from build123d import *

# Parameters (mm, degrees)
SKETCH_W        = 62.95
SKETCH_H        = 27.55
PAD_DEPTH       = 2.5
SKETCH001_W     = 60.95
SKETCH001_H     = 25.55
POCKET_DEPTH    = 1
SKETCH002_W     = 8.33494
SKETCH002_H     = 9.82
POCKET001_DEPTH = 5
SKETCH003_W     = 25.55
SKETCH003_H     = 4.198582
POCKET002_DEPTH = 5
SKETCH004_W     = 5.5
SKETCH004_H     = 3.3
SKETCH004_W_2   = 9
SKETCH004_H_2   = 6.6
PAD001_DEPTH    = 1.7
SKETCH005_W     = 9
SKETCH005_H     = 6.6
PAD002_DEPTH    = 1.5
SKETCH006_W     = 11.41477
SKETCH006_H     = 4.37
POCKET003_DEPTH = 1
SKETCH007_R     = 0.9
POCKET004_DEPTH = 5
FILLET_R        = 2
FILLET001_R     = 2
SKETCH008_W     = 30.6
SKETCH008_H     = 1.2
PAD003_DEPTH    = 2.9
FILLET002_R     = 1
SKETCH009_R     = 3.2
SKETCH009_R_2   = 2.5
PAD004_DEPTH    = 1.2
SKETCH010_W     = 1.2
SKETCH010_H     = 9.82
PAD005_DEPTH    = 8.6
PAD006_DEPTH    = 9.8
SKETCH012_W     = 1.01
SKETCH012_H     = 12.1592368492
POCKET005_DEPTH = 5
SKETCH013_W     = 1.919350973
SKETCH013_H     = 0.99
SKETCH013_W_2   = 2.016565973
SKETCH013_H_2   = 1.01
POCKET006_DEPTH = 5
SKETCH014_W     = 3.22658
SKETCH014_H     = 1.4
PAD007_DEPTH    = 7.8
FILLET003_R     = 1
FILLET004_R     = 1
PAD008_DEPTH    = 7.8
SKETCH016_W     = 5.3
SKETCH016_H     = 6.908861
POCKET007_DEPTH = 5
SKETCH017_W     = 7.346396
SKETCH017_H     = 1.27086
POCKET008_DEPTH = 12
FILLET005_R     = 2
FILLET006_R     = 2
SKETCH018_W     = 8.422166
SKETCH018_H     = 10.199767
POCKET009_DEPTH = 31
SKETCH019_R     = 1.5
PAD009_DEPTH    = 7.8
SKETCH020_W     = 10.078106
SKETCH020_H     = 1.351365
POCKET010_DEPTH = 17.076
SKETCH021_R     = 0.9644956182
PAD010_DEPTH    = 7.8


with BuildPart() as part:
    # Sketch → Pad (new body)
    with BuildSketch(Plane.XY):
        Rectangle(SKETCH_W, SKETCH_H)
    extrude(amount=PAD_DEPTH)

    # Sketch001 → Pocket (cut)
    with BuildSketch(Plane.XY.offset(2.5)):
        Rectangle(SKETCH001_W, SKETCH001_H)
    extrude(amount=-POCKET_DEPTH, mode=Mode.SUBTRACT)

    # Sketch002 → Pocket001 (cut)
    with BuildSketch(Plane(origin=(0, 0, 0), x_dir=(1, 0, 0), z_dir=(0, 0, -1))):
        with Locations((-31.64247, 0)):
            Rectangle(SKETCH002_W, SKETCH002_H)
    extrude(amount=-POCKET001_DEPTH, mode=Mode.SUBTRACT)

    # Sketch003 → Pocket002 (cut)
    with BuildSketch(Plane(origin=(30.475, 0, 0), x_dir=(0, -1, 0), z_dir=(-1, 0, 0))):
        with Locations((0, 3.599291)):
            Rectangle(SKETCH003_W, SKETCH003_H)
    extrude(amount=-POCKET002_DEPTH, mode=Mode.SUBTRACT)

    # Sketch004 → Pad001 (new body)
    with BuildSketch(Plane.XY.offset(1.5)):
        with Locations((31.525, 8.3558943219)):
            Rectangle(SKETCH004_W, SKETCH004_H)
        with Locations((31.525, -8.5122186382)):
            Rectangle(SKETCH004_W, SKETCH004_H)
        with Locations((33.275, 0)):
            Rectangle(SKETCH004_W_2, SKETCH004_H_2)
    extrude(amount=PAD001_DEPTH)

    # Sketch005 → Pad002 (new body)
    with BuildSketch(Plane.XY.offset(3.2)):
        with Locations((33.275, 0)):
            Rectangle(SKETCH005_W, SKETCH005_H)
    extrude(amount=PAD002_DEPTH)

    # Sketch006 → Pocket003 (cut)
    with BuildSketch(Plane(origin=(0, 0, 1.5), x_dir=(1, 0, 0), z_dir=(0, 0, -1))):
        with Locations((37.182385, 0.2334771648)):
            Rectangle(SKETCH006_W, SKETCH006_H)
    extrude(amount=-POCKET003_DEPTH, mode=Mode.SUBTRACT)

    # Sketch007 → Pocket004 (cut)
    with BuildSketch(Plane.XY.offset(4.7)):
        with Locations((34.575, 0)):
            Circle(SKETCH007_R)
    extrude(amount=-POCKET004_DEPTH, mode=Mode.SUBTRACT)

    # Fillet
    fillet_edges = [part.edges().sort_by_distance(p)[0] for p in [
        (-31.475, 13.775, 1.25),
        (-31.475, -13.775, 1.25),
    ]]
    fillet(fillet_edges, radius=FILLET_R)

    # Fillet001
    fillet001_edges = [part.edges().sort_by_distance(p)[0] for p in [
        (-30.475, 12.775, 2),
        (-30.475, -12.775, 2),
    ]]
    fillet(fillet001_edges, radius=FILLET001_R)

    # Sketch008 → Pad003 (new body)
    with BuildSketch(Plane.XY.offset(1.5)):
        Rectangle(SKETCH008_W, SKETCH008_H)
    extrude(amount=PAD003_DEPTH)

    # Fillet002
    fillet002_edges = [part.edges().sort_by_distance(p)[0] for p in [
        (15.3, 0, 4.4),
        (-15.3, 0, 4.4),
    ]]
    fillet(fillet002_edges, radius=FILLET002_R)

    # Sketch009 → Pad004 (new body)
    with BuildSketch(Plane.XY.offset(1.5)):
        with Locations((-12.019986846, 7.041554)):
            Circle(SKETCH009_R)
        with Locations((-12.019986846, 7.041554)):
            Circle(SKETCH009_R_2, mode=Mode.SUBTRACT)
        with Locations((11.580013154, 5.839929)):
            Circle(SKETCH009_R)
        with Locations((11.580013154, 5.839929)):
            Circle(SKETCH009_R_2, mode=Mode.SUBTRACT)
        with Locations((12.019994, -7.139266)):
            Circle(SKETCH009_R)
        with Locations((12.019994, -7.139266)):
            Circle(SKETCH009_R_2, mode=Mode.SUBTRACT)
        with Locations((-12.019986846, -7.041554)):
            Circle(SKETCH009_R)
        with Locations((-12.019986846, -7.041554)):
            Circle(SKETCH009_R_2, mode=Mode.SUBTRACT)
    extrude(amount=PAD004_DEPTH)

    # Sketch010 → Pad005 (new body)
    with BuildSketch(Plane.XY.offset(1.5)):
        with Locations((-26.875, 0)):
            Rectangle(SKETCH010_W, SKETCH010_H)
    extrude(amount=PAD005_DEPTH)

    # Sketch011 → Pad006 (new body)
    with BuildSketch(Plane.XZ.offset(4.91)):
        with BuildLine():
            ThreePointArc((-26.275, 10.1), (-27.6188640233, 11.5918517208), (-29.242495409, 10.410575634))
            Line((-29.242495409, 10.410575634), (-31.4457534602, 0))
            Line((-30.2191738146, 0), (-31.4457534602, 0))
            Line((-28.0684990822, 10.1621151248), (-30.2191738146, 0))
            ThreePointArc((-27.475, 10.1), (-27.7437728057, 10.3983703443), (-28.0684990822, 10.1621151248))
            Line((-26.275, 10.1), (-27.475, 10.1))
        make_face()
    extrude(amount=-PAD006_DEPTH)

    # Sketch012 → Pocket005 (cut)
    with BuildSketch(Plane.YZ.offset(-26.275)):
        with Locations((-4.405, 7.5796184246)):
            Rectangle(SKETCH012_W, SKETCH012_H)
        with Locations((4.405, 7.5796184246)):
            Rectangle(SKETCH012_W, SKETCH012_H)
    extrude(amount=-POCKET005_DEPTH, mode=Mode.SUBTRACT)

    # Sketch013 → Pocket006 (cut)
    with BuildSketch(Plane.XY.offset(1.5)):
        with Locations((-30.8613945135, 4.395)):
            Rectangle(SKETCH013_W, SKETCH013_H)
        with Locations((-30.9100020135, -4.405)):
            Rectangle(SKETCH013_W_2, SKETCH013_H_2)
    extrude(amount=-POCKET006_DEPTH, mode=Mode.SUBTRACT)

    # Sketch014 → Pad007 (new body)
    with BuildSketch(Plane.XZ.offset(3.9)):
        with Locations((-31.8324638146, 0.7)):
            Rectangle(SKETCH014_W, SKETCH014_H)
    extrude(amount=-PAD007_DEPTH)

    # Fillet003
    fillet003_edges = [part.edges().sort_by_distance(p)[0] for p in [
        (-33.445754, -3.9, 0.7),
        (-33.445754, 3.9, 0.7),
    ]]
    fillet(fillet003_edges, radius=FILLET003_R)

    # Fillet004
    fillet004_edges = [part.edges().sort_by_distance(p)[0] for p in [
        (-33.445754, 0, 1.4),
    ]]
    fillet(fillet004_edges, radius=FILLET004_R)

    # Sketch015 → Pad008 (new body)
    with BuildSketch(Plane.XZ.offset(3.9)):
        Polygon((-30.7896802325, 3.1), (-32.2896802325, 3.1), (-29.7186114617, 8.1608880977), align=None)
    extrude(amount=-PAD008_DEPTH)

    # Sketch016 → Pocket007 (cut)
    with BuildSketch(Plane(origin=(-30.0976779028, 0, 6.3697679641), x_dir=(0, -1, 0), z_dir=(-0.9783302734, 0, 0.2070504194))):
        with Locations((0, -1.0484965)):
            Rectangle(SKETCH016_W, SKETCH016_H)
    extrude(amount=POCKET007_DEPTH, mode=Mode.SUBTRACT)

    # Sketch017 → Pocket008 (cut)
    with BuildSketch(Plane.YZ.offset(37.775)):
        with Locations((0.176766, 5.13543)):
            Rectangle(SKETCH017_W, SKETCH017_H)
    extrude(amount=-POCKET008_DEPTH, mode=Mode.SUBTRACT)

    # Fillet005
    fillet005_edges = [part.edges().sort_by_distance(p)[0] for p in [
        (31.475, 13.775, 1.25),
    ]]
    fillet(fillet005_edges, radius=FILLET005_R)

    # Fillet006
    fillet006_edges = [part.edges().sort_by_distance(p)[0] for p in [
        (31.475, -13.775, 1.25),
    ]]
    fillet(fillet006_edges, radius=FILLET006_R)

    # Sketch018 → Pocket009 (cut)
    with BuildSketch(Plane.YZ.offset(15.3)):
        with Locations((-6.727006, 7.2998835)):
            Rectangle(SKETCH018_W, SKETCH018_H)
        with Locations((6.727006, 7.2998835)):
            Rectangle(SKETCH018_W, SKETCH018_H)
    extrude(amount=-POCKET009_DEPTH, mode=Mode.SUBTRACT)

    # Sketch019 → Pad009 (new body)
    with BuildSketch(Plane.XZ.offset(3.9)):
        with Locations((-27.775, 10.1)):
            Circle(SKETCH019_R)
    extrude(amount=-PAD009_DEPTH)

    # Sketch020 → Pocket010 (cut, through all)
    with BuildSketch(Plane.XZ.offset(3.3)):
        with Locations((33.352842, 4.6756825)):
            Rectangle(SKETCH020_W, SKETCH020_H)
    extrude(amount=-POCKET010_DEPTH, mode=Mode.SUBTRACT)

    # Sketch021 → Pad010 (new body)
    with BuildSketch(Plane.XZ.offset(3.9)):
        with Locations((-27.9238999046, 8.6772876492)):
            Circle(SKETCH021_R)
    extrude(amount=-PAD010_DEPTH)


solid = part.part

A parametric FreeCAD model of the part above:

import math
import FreeCAD as App
import Part
import Sketcher


def edges_at(feature, points):
    """Names of the edges that pass closest to the given points."""
    edges = feature.Shape.Edges
    near = lambda p: min(range(len(edges)), key=lambda i: edges[i].distToShape(Part.Vertex(*p))[0])
    return sorted({f"Edge{near(p) + 1}" for p in points})

doc = App.newDocument("Part")
body = doc.addObject("PartDesign::Body", "Body")

# Sketch on XY plane
sketch1 = doc.addObject("Sketcher::SketchObject", "Sketch")
body.addObject(sketch1)
sketch1.AttachmentSupport = (doc.XY_Plane, [""])
sketch1.MapMode = "FlatFace"
sketch1.addGeometry([
    Part.LineSegment(App.Vector(-31, 14, 0), App.Vector(-31, -14, 0)),
    Part.LineSegment(App.Vector(-31, -14, 0), App.Vector(31, -14, 0)),
    Part.LineSegment(App.Vector(31, -14, 0), App.Vector(31, 14, 0)),
    Part.LineSegment(App.Vector(31, 14, 0), App.Vector(-31, 14, 0)),
], False)
sketch1.addConstraint([
    Sketcher.Constraint("Coincident", 0, 2, 1, 1),
    Sketcher.Constraint("Coincident", 1, 2, 2, 1),
    Sketcher.Constraint("Coincident", 2, 2, 3, 1),
    Sketcher.Constraint("Coincident", 3, 2, 0, 1),
    Sketcher.Constraint("Vertical", 0),
    Sketcher.Constraint("Horizontal", 1),
    Sketcher.Constraint("Vertical", 2),
    Sketcher.Constraint("Horizontal", 3),
    Sketcher.Constraint("Symmetric", 0, 2, 2, 2, -1, 1),
    Sketcher.Constraint("DistanceX", 1, 1, 1, 2, 62.95),
    Sketcher.Constraint("DistanceY", 0, 2, 0, 1, 27.55),
])
pad1 = doc.addObject("PartDesign::Pad", "Pad")
body.addObject(pad1)
pad1.Profile = sketch1
pad1.Length = 2.5

# Sketch on XY plane
sketch2 = doc.addObject("Sketcher::SketchObject", "Sketch001")
body.addObject(sketch2)
sketch2.AttachmentSupport = (doc.XY_Plane, [""])
sketch2.MapMode = "FlatFace"
sketch2.AttachmentOffset = App.Placement(App.Vector(0, 0, 2.5), App.Rotation())
sketch2.addGeometry([
    Part.LineSegment(App.Vector(-30, 13, 0), App.Vector(-30, -13, 0)),
    Part.LineSegment(App.Vector(-30, -13, 0), App.Vector(30, -13, 0)),
    Part.LineSegment(App.Vector(30, -13, 0), App.Vector(30, 13, 0)),
    Part.LineSegment(App.Vector(30, 13, 0), App.Vector(-30, 13, 0)),
], False)
sketch2.addConstraint([
    Sketcher.Constraint("Coincident", 0, 2, 1, 1),
    Sketcher.Constraint("Coincident", 1, 2, 2, 1),
    Sketcher.Constraint("Coincident", 2, 2, 3, 1),
    Sketcher.Constraint("Coincident", 3, 2, 0, 1),
    Sketcher.Constraint("Vertical", 0),
    Sketcher.Constraint("Horizontal", 1),
    Sketcher.Constraint("Vertical", 2),
    Sketcher.Constraint("Horizontal", 3),
    Sketcher.Constraint("Symmetric", 0, 2, 2, 2, -1, 1),
    Sketcher.Constraint("DistanceX", 1, 1, 1, 2, 60.95),
    Sketcher.Constraint("DistanceY", 0, 2, 0, 1, 25.55),
])
pocket1 = doc.addObject("PartDesign::Pocket", "Pocket")
body.addObject(pocket1)
pocket1.Profile = sketch2
pocket1.Length = 1

# Sketch on XY plane
sketch3 = doc.addObject("Sketcher::SketchObject", "Sketch002")
body.addObject(sketch3)
sketch3.AttachmentSupport = (doc.XY_Plane, [""])
sketch3.MapMode = "FlatFace"
sketch3.addGeometry([
    Part.LineSegment(App.Vector(-36, -5, 0), App.Vector(-36, 5, 0)),
    Part.LineSegment(App.Vector(-36, 5, 0), App.Vector(-27, 5, 0)),
    Part.LineSegment(App.Vector(-27, 5, 0), App.Vector(-27, -5, 0)),
    Part.LineSegment(App.Vector(-27, -5, 0), App.Vector(-36, -5, 0)),
], False)
sketch3.addConstraint([
    Sketcher.Constraint("Coincident", 0, 2, 1, 1),
    Sketcher.Constraint("Coincident", 1, 2, 2, 1),
    Sketcher.Constraint("Coincident", 2, 2, 3, 1),
    Sketcher.Constraint("Coincident", 3, 2, 0, 1),
    Sketcher.Constraint("Vertical", 0),
    Sketcher.Constraint("Horizontal", 1),
    Sketcher.Constraint("Vertical", 2),
    Sketcher.Constraint("Horizontal", 3),
    Sketcher.Constraint("DistanceY", 0, 1, 0, 2, 9.82),
    Sketcher.Constraint("DistanceY", -1, 1, 0, 2, 4.91),
    Sketcher.Constraint("DistanceX", 1, 2, -1, 1, 27.475),
    Sketcher.Constraint("DistanceX", 1, 1, 1, 2, 8.33494),
])
pocket2 = doc.addObject("PartDesign::Pocket", "Pocket001")
body.addObject(pocket2)
pocket2.Profile = sketch3
pocket2.Length = 5
pocket2.Reversed = True

# Sketch on YZ plane
sketch4 = doc.addObject("Sketcher::SketchObject", "Sketch003")
body.addObject(sketch4)
sketch4.AttachmentSupport = (doc.YZ_Plane, [""])
sketch4.MapMode = "FlatFace"
sketch4.AttachmentOffset = App.Placement(App.Vector(0, 0, 30.475), App.Rotation())
sketch4.addGeometry([
    Part.LineSegment(App.Vector(12.8, 5.7, 0), App.Vector(12.8, 1.5, 0)),
    Part.LineSegment(App.Vector(12.8, 1.5, 0), App.Vector(-12.8, 1.5, 0)),
    Part.LineSegment(App.Vector(-12.8, 1.5, 0), App.Vector(-12.8, 5.7, 0)),
    Part.LineSegment(App.Vector(-12.8, 5.7, 0), App.Vector(12.8, 5.7, 0)),
], False)
sketch4.addConstraint([
    Sketcher.Constraint("Coincident", 0, 2, 1, 1),
    Sketcher.Constraint("Coincident", 1, 2, 2, 1),
    Sketcher.Constraint("Coincident", 2, 2, 3, 1),
    Sketcher.Constraint("Coincident", 3, 2, 0, 1),
    Sketcher.Constraint("Vertical", 0),
    Sketcher.Constraint("Horizontal", 1),
    Sketcher.Constraint("Vertical", 2),
    Sketcher.Constraint("Horizontal", 3),
    Sketcher.Constraint("DistanceX", 1, 2, 1, 1, 25.55),
    Sketcher.Constraint("DistanceY", -1, 1, 0, 2, 1.5),
    Sketcher.Constraint("DistanceX", -1, 1, 0, 2, 12.775),
    Sketcher.Constraint("DistanceY", 0, 2, 0, 1, 4.198582),
])
pocket3 = doc.addObject("PartDesign::Pocket", "Pocket002")
body.addObject(pocket3)
pocket3.Profile = sketch4
pocket3.Length = 5
pocket3.Reversed = True

# Sketch on XY plane
sketch5 = doc.addObject("Sketcher::SketchObject", "Sketch004")
body.addObject(sketch5)
sketch5.AttachmentSupport = (doc.XY_Plane, [""])
sketch5.MapMode = "FlatFace"
sketch5.AttachmentOffset = App.Placement(App.Vector(0, 0, 1.5), App.Rotation())
sketch5.addGeometry([
    Part.LineSegment(App.Vector(28.8, 10, 0), App.Vector(28.8, 6.7, 0)),  # 0
    Part.LineSegment(App.Vector(28.8, 6.7, 0), App.Vector(34.3, 6.7, 0)),  # 1
    Part.LineSegment(App.Vector(34.3, 6.7, 0), App.Vector(34.3, 10, 0)),  # 2
    Part.LineSegment(App.Vector(34.3, 10, 0), App.Vector(28.8, 10, 0)),  # 3
    Part.LineSegment(App.Vector(28.8, -6.9, 0), App.Vector(28.8, -10.2, 0)),  # 4
    Part.LineSegment(App.Vector(28.8, -10.2, 0), App.Vector(34.3, -10.2, 0)),  # 5
    Part.LineSegment(App.Vector(34.3, -10.2, 0), App.Vector(34.3, -6.9, 0)),  # 6
    Part.LineSegment(App.Vector(34.3, -6.9, 0), App.Vector(28.8, -6.9, 0)),  # 7
    Part.LineSegment(App.Vector(28.8, 3.3, 0), App.Vector(28.8, -3.3, 0)),  # 8
    Part.LineSegment(App.Vector(28.8, -3.3, 0), App.Vector(37.8, -3.3, 0)),  # 9
    Part.LineSegment(App.Vector(37.8, -3.3, 0), App.Vector(37.8, 3.3, 0)),  # 10
    Part.LineSegment(App.Vector(37.8, 3.3, 0), App.Vector(28.8, 3.3, 0)),  # 11
], False)
sketch5.addConstraint([
    Sketcher.Constraint("Coincident", 0, 2, 1, 1),
    Sketcher.Constraint("Coincident", 1, 2, 2, 1),
    Sketcher.Constraint("Coincident", 2, 2, 3, 1),
    Sketcher.Constraint("Coincident", 3, 2, 0, 1),
    Sketcher.Constraint("Coincident", 4, 2, 5, 1),
    Sketcher.Constraint("Coincident", 5, 2, 6, 1),
    Sketcher.Constraint("Coincident", 6, 2, 7, 1),
    Sketcher.Constraint("Coincident", 7, 2, 4, 1),
    Sketcher.Constraint("Coincident", 8, 2, 9, 1),
    Sketcher.Constraint("Coincident", 9, 2, 10, 1),
    Sketcher.Constraint("Coincident", 10, 2, 11, 1),
    Sketcher.Constraint("Coincident", 11, 2, 8, 1),
    Sketcher.Constraint("Vertical", 0),
    Sketcher.Constraint("Horizontal", 1),
    Sketcher.Constraint("Vertical", 2),
    Sketcher.Constraint("Horizontal", 3),
    Sketcher.Constraint("Vertical", 4),
    Sketcher.Constraint("Horizontal", 5),
    Sketcher.Constraint("Vertical", 6),
    Sketcher.Constraint("Horizontal", 7),
    Sketcher.Constraint("Vertical", 8),
    Sketcher.Constraint("Horizontal", 9),
    Sketcher.Constraint("Vertical", 10),
    Sketcher.Constraint("Horizontal", 11),
    Sketcher.Constraint("Vertical", 3, 2, 4, 2),
    Sketcher.Constraint("Vertical", 2, 2, 5, 2),
    Sketcher.Constraint("Vertical", 7, 2, 8, 2),
    Sketcher.Constraint("Equal", 2, 4),
    Sketcher.Constraint("DistanceX", 9, 1, 9, 2, 9.0),
    Sketcher.Constraint("DistanceX", 1, 1, 1, 2, 5.5),
    Sketcher.Constraint("DistanceY", 0, 2, 0, 1, 3.3),
    Sketcher.Constraint("DistanceY", 8, 2, 8, 1, 6.6),
    Sketcher.Constraint("DistanceY", 8, 2, -1, 1, 3.3),
    Sketcher.Constraint("DistanceX", -1, 1, 0, 2, 28.775),
    Sketcher.Constraint("DistanceY", 4, 2, -1, 1, 10.162219),
    Sketcher.Constraint("DistanceY", -1, 1, 0, 2, 6.705894),
])
pad2 = doc.addObject("PartDesign::Pad", "Pad001")
body.addObject(pad2)
pad2.Profile = sketch5
pad2.Length = 1.7

# Sketch on XY plane
sketch6 = doc.addObject("Sketcher::SketchObject", "Sketch005")
body.addObject(sketch6)
sketch6.AttachmentSupport = (doc.XY_Plane, [""])
sketch6.MapMode = "FlatFace"
sketch6.AttachmentOffset = App.Placement(App.Vector(0, 0, 3.2), App.Rotation())
sketch6.addGeometry([
    Part.LineSegment(App.Vector(29, 3, 0), App.Vector(29, -3, 0)),
    Part.LineSegment(App.Vector(29, -3, 0), App.Vector(38, -3, 0)),
    Part.LineSegment(App.Vector(38, -3, 0), App.Vector(38, 3, 0)),
    Part.LineSegment(App.Vector(38, 3, 0), App.Vector(29, 3, 0)),
], False)
sketch6.addConstraint([
    Sketcher.Constraint("Coincident", 0, 2, 1, 1),
    Sketcher.Constraint("Coincident", 1, 2, 2, 1),
    Sketcher.Constraint("Coincident", 2, 2, 3, 1),
    Sketcher.Constraint("Coincident", 3, 2, 0, 1),
    Sketcher.Constraint("Vertical", 0),
    Sketcher.Constraint("Horizontal", 1),
    Sketcher.Constraint("Vertical", 2),
    Sketcher.Constraint("Horizontal", 3),
    Sketcher.Constraint("DistanceX", 1, 1, 1, 2, 9.0),
    Sketcher.Constraint("DistanceY", 0, 2, 0, 1, 6.6),
    Sketcher.Constraint("DistanceY", 0, 2, -1, 1, 3.3),
    Sketcher.Constraint("DistanceX", -1, 1, 0, 2, 28.775),
])
pad3 = doc.addObject("PartDesign::Pad", "Pad002")
body.addObject(pad3)
pad3.Profile = sketch6
pad3.Length = 1.5

# Sketch on XY plane
sketch7 = doc.addObject("Sketcher::SketchObject", "Sketch006")
body.addObject(sketch7)
sketch7.AttachmentSupport = (doc.XY_Plane, [""])
sketch7.MapMode = "FlatFace"
sketch7.AttachmentOffset = App.Placement(App.Vector(0, 0, 1.5), App.Rotation())
sketch7.addGeometry([
    Part.LineSegment(App.Vector(31.5, -2.4, 0), App.Vector(31.5, 2, 0)),
    Part.LineSegment(App.Vector(31.5, 2, 0), App.Vector(42.9, 2, 0)),
    Part.LineSegment(App.Vector(42.9, 2, 0), App.Vector(42.9, -2.4, 0)),
    Part.LineSegment(App.Vector(42.9, -2.4, 0), App.Vector(31.5, -2.4, 0)),
], False)
sketch7.addConstraint([
    Sketcher.Constraint("Coincident", 0, 2, 1, 1),
    Sketcher.Constraint("Coincident", 1, 2, 2, 1),
    Sketcher.Constraint("Coincident", 2, 2, 3, 1),
    Sketcher.Constraint("Coincident", 3, 2, 0, 1),
    Sketcher.Constraint("Vertical", 0),
    Sketcher.Constraint("Horizontal", 1),
    Sketcher.Constraint("Vertical", 2),
    Sketcher.Constraint("Horizontal", 3),
    Sketcher.Constraint("DistanceY", 0, 1, 0, 2, 4.37),
    Sketcher.Constraint("DistanceX", -1, 1, 0, 2, 31.475),
    Sketcher.Constraint("DistanceX", 1, 1, 1, 2, 11.41477),
    Sketcher.Constraint("DistanceY", -1, 1, 0, 2, 1.951523),
])
pocket4 = doc.addObject("PartDesign::Pocket", "Pocket003")
body.addObject(pocket4)
pocket4.Profile = sketch7
pocket4.Length = 1
pocket4.Reversed = True

# Sketch on XY plane
sketch8 = doc.addObject("Sketcher::SketchObject", "Sketch007")
body.addObject(sketch8)
sketch8.AttachmentSupport = (doc.XY_Plane, [""])
sketch8.MapMode = "FlatFace"
sketch8.AttachmentOffset = App.Placement(App.Vector(0, 0, 4.7), App.Rotation())
sketch8.addGeometry(Part.Circle(App.Vector(34.6, 0, 0), App.Vector(0, 0, 1), 0.9), False)
sketch8.addConstraint([
    Sketcher.Constraint("PointOnObject", 0, 3, -1),
    Sketcher.Constraint("Diameter", 0, 1.8),
    Sketcher.Constraint("DistanceX", -1, 1, 0, 3, 34.575),
])
pocket5 = doc.addObject("PartDesign::Pocket", "Pocket004")
body.addObject(pocket5)
pocket5.Profile = sketch8
pocket5.Length = 5
doc.recompute()

fillet = doc.addObject("PartDesign::Fillet", "Fillet")
body.addObject(fillet)
fillet.Base = (pocket5, edges_at(pocket5, [(-31.475, 13.775, 1.25), (-31.475, -13.775, 1.25)]))
fillet.Radius = 2
doc.recompute()

fillet2 = doc.addObject("PartDesign::Fillet", "Fillet001")
body.addObject(fillet2)
fillet2.Base = (fillet, edges_at(fillet, [(-30.475, 12.775, 2), (-30.475, -12.775, 2)]))
fillet2.Radius = 2

# Sketch on XY plane
sketch9 = doc.addObject("Sketcher::SketchObject", "Sketch008")
body.addObject(sketch9)
sketch9.AttachmentSupport = (doc.XY_Plane, [""])
sketch9.MapMode = "FlatFace"
sketch9.AttachmentOffset = App.Placement(App.Vector(0, 0, 1.5), App.Rotation())
sketch9.addGeometry([
    Part.LineSegment(App.Vector(-15.3, 0.6, 0), App.Vector(-15.3, -0.6, 0)),
    Part.LineSegment(App.Vector(-15.3, -0.6, 0), App.Vector(15.3, -0.6, 0)),
    Part.LineSegment(App.Vector(15.3, -0.6, 0), App.Vector(15.3, 0.6, 0)),
    Part.LineSegment(App.Vector(15.3, 0.6, 0), App.Vector(-15.3, 0.6, 0)),
], False)
sketch9.addConstraint([
    Sketcher.Constraint("Coincident", 0, 2, 1, 1),
    Sketcher.Constraint("Coincident", 1, 2, 2, 1),
    Sketcher.Constraint("Coincident", 2, 2, 3, 1),
    Sketcher.Constraint("Coincident", 3, 2, 0, 1),
    Sketcher.Constraint("Vertical", 0),
    Sketcher.Constraint("Horizontal", 1),
    Sketcher.Constraint("Vertical", 2),
    Sketcher.Constraint("Horizontal", 3),
    Sketcher.Constraint("Symmetric", 0, 2, 2, 2, -1, 1),
    Sketcher.Constraint("DistanceX", 1, 1, 1, 2, 30.6),
    Sketcher.Constraint("DistanceY", 0, 2, 0, 1, 1.2),
])
pad4 = doc.addObject("PartDesign::Pad", "Pad003")
body.addObject(pad4)
pad4.Profile = sketch9
pad4.Length = 2.9
doc.recompute()

fillet3 = doc.addObject("PartDesign::Fillet", "Fillet002")
body.addObject(fillet3)
fillet3.Base = (pad4, edges_at(pad4, [(15.3, 0, 4.4), (-15.3, 0, 4.4)]))
fillet3.Radius = 1

# Sketch on XY plane
sketch10 = doc.addObject("Sketcher::SketchObject", "Sketch009")
body.addObject(sketch10)
sketch10.AttachmentSupport = (doc.XY_Plane, [""])
sketch10.MapMode = "FlatFace"
sketch10.AttachmentOffset = App.Placement(App.Vector(0, 0, 1.5), App.Rotation())
sketch10.addGeometry([
    Part.Circle(App.Vector(-12, 7, 0), App.Vector(0, 0, 1), 3.2),  # 0
    Part.Circle(App.Vector(-12, 7, 0), App.Vector(0, 0, 1), 2.5),  # 1
    Part.Circle(App.Vector(11.6, 5.8, 0), App.Vector(0, 0, 1), 3.2),  # 2
    Part.Circle(App.Vector(11.6, 5.8, 0), App.Vector(0, 0, 1), 2.5),  # 3
    Part.Circle(App.Vector(12, -7.1, 0), App.Vector(0, 0, 1), 3.2),  # 4
    Part.Circle(App.Vector(12, -7.1, 0), App.Vector(0, 0, 1), 2.5),  # 5
    Part.Circle(App.Vector(-12, -7, 0), App.Vector(0, 0, 1), 3.2),  # 6
    Part.Circle(App.Vector(-12, -7, 0), App.Vector(0, 0, 1), 2.5),  # 7
], False)
sketch10.addConstraint([
    Sketcher.Constraint("Coincident", 1, 3, 0, 3),
    Sketcher.Constraint("Coincident", 3, 3, 2, 3),
    Sketcher.Constraint("Coincident", 5, 3, 4, 3),
    Sketcher.Constraint("Coincident", 7, 3, 6, 3),
    Sketcher.Constraint("Equal", 0, 2),
    Sketcher.Constraint("Equal", 1, 3),
    Sketcher.Constraint("Equal", 2, 4),
    Sketcher.Constraint("Equal", 3, 5),
    Sketcher.Constraint("Equal", 4, 6),
    Sketcher.Constraint("Equal", 5, 7),
    Sketcher.Constraint("Symmetric", 0, 3, 6, 3, -1),
    Sketcher.Constraint("Diameter", 1, 5.0),
    Sketcher.Constraint("Diameter", 0, 6.4),
    Sketcher.Constraint("DistanceX", 0, 3, 2, 3, 23.6),
    Sketcher.Constraint("DistanceY", -1, 1, 2, 3, 5.839929),
    Sketcher.Constraint("DistanceX", 2, 3, 4, 3, 0.439981),
    Sketcher.Constraint("DistanceY", 4, 3, 0, 3, 14.18082),
    Sketcher.Constraint("DistanceX", 0, 3, -1, 1, 12.019987),
    Sketcher.Constraint("DistanceY", -1, 1, 0, 3, 7.041554),
])
pad5 = doc.addObject("PartDesign::Pad", "Pad004")
body.addObject(pad5)
pad5.Profile = sketch10
pad5.Length = 1.2

# Sketch on XY plane
sketch11 = doc.addObject("Sketcher::SketchObject", "Sketch010")
body.addObject(sketch11)
sketch11.AttachmentSupport = (doc.XY_Plane, [""])
sketch11.MapMode = "FlatFace"
sketch11.AttachmentOffset = App.Placement(App.Vector(0, 0, 1.5), App.Rotation())
sketch11.addGeometry([
    Part.LineSegment(App.Vector(-27.5, 4.9, 0), App.Vector(-27.5, -4.9, 0)),
    Part.LineSegment(App.Vector(-27.5, -4.9, 0), App.Vector(-26.3, -4.9, 0)),
    Part.LineSegment(App.Vector(-26.3, -4.9, 0), App.Vector(-26.3, 4.9, 0)),
    Part.LineSegment(App.Vector(-26.3, 4.9, 0), App.Vector(-27.5, 4.9, 0)),
], False)
sketch11.addConstraint([
    Sketcher.Constraint("Coincident", 0, 2, 1, 1),
    Sketcher.Constraint("Coincident", 1, 2, 2, 1),
    Sketcher.Constraint("Coincident", 2, 2, 3, 1),
    Sketcher.Constraint("Coincident", 3, 2, 0, 1),
    Sketcher.Constraint("Vertical", 0),
    Sketcher.Constraint("Horizontal", 1),
    Sketcher.Constraint("Vertical", 2),
    Sketcher.Constraint("Horizontal", 3),
    Sketcher.Constraint("DistanceX", 1, 1, 1, 2, 1.2),
    Sketcher.Constraint("DistanceY", 0, 2, 0, 1, 9.82),
    Sketcher.Constraint("DistanceY", 0, 2, -1, 1, 4.91),
    Sketcher.Constraint("DistanceX", 0, 2, -1, 1, 27.475),
])
pad6 = doc.addObject("PartDesign::Pad", "Pad005")
body.addObject(pad6)
pad6.Profile = sketch11
pad6.Length = 8.6

# Sketch on XZ plane
sketch12 = doc.addObject("Sketcher::SketchObject", "Sketch011")
body.addObject(sketch12)
sketch12.AttachmentSupport = (doc.XZ_Plane, [""])
sketch12.MapMode = "FlatFace"
sketch12.AttachmentOffset = App.Placement(App.Vector(0, 0, 4.91), App.Rotation())
sketch12.addGeometry([
    Part.ArcOfCircle(Part.Circle(App.Vector(-27.77, 10.1, 0), App.Vector(0, 0, 1), 1.5), math.radians(0), math.radians(168)),  # 0
    Part.LineSegment(App.Vector(-29.24, 10.41, 0), App.Vector(-31.45, 0, 0)),  # 1
    Part.LineSegment(App.Vector(-31.45, 0, 0), App.Vector(-30.22, 0, 0)),  # 2
    Part.LineSegment(App.Vector(-30.22, 0, 0), App.Vector(-28.07, 10.16, 0)),  # 3
    Part.ArcOfCircle(Part.Circle(App.Vector(-27.77, 10.1, 0), App.Vector(0, 0, 1), 0.3), math.radians(0), math.radians(168)),  # 4
    Part.LineSegment(App.Vector(-27.48, 10.1, 0), App.Vector(-26.27, 10.1, 0)),  # 5
], False)
sketch12.addConstraint([
    Sketcher.Constraint("Tangent", 0, 2, 1, 1),
    Sketcher.Constraint("Coincident", 1, 2, 2, 1),
    Sketcher.Constraint("Coincident", 2, 2, 3, 1),
    Sketcher.Constraint("Tangent", 3, 2, 4, 2),
    Sketcher.Constraint("Coincident", 4, 1, 5, 1),
    Sketcher.Constraint("Coincident", 5, 2, 0, 1),
    Sketcher.Constraint("Horizontal", 2),
    Sketcher.Constraint("Horizontal", 5),
    Sketcher.Constraint("Coincident", 4, 3, 0, 3),
    Sketcher.Constraint("PointOnObject", 1, 2, -1),
    Sketcher.Constraint("Parallel", 1, 3),
    Sketcher.Constraint("Horizontal", 0, 3, 4, 1),
    Sketcher.Constraint("Radius", 0, 1.5),
    Sketcher.Constraint("Radius", 4, 0.3),
    Sketcher.Constraint("DistanceY", -1, 1, 0, 3, 10.1),
    Sketcher.Constraint("DistanceX", 0, 3, -1, 1, 27.775),
    Sketcher.Constraint("DistanceX", 2, 1, 2, 2, 1.22658),
])
pad7 = doc.addObject("PartDesign::Pad", "Pad006")
body.addObject(pad7)
pad7.Profile = sketch12
pad7.Length = 9.8
pad7.Reversed = True

# Sketch on YZ plane
sketch13 = doc.addObject("Sketcher::SketchObject", "Sketch012")
body.addObject(sketch13)
sketch13.AttachmentSupport = (doc.YZ_Plane, [""])
sketch13.MapMode = "FlatFace"
sketch13.AttachmentOffset = App.Placement(App.Vector(0, 0, -26.275), App.Rotation())
sketch13.addGeometry([
    Part.LineSegment(App.Vector(-4.9, 13.7, 0), App.Vector(-4.9, 1.5, 0)),  # 0
    Part.LineSegment(App.Vector(-4.9, 1.5, 0), App.Vector(-3.9, 1.5, 0)),  # 1
    Part.LineSegment(App.Vector(-3.9, 1.5, 0), App.Vector(-3.9, 13.7, 0)),  # 2
    Part.LineSegment(App.Vector(-3.9, 13.7, 0), App.Vector(-4.9, 13.7, 0)),  # 3
    Part.LineSegment(App.Vector(3.9, 13.7, 0), App.Vector(3.9, 1.5, 0)),  # 4
    Part.LineSegment(App.Vector(3.9, 1.5, 0), App.Vector(4.9, 1.5, 0)),  # 5
    Part.LineSegment(App.Vector(4.9, 1.5, 0), App.Vector(4.9, 13.7, 0)),  # 6
    Part.LineSegment(App.Vector(4.9, 13.7, 0), App.Vector(3.9, 13.7, 0)),  # 7
], False)
sketch13.addConstraint([
    Sketcher.Constraint("Coincident", 0, 2, 1, 1),
    Sketcher.Constraint("Coincident", 1, 2, 2, 1),
    Sketcher.Constraint("Coincident", 2, 2, 3, 1),
    Sketcher.Constraint("Coincident", 3, 2, 0, 1),
    Sketcher.Constraint("Coincident", 4, 2, 5, 1),
    Sketcher.Constraint("Coincident", 5, 2, 6, 1),
    Sketcher.Constraint("Coincident", 6, 2, 7, 1),
    Sketcher.Constraint("Coincident", 7, 2, 4, 1),
    Sketcher.Constraint("Vertical", 0),
    Sketcher.Constraint("Horizontal", 1),
    Sketcher.Constraint("Vertical", 2),
    Sketcher.Constraint("Horizontal", 3),
    Sketcher.Constraint("Vertical", 4),
    Sketcher.Constraint("Horizontal", 5),
    Sketcher.Constraint("Vertical", 6),
    Sketcher.Constraint("Horizontal", 7),
    Sketcher.Constraint("Symmetric", 1, 2, 4, 2, -2),
    Sketcher.Constraint("Symmetric", 3, 2, 6, 2, -2),
    Sketcher.Constraint("DistanceX", 1, 1, 1, 2, 1.01),
    Sketcher.Constraint("DistanceY", -1, 1, 0, 2, 1.5),
    Sketcher.Constraint("DistanceX", 1, 2, -1, 1, 3.9),
    Sketcher.Constraint("DistanceY", 0, 2, 0, 1, 12.159237),
])
pocket6 = doc.addObject("PartDesign::Pocket", "Pocket005")
body.addObject(pocket6)
pocket6.Profile = sketch13
pocket6.Length = 5

# Sketch on XY plane
sketch14 = doc.addObject("Sketcher::SketchObject", "Sketch013")
body.addObject(sketch14)
sketch14.AttachmentSupport = (doc.XY_Plane, [""])
sketch14.MapMode = "FlatFace"
sketch14.AttachmentOffset = App.Placement(App.Vector(0, 0, 1.5), App.Rotation())
sketch14.addGeometry([
    Part.LineSegment(App.Vector(-31.8, 4.9, 0), App.Vector(-31.8, 3.9, 0)),  # 0
    Part.LineSegment(App.Vector(-31.8, 3.9, 0), App.Vector(-29.9, 3.9, 0)),  # 1
    Part.LineSegment(App.Vector(-29.9, 3.9, 0), App.Vector(-29.9, 4.9, 0)),  # 2
    Part.LineSegment(App.Vector(-29.9, 4.9, 0), App.Vector(-31.8, 4.9, 0)),  # 3
    Part.LineSegment(App.Vector(-31.9, -3.9, 0), App.Vector(-31.9, -4.9, 0)),  # 4
    Part.LineSegment(App.Vector(-31.9, -4.9, 0), App.Vector(-29.9, -4.9, 0)),  # 5
    Part.LineSegment(App.Vector(-29.9, -4.9, 0), App.Vector(-29.9, -3.9, 0)),  # 6
    Part.LineSegment(App.Vector(-29.9, -3.9, 0), App.Vector(-31.9, -3.9, 0)),  # 7
], False)
sketch14.addConstraint([
    Sketcher.Constraint("Coincident", 0, 2, 1, 1),
    Sketcher.Constraint("Coincident", 1, 2, 2, 1),
    Sketcher.Constraint("Coincident", 2, 2, 3, 1),
    Sketcher.Constraint("Coincident", 3, 2, 0, 1),
    Sketcher.Constraint("Coincident", 4, 2, 5, 1),
    Sketcher.Constraint("Coincident", 5, 2, 6, 1),
    Sketcher.Constraint("Coincident", 6, 2, 7, 1),
    Sketcher.Constraint("Coincident", 7, 2, 4, 1),
    Sketcher.Constraint("Vertical", 0),
    Sketcher.Constraint("Horizontal", 1),
    Sketcher.Constraint("Vertical", 2),
    Sketcher.Constraint("Horizontal", 3),
    Sketcher.Constraint("Vertical", 4),
    Sketcher.Constraint("Horizontal", 5),
    Sketcher.Constraint("Vertical", 6),
    Sketcher.Constraint("Horizontal", 7),
    Sketcher.Constraint("Symmetric", 1, 2, 6, 2, -1),
    Sketcher.Constraint("DistanceY", 0, 2, 0, 1, 0.99),
    Sketcher.Constraint("DistanceY", 4, 2, 4, 1, 1.01),
    Sketcher.Constraint("DistanceY", -1, 1, 0, 2, 3.9),
    Sketcher.Constraint("DistanceX", 1, 1, 1, 2, 1.919351),
    Sketcher.Constraint("DistanceX", 5, 1, 5, 2, 2.016566),
    Sketcher.Constraint("DistanceX", 0, 2, -1, 1, 31.82107),
])
pocket7 = doc.addObject("PartDesign::Pocket", "Pocket006")
body.addObject(pocket7)
pocket7.Profile = sketch14
pocket7.Length = 5

# Sketch on XZ plane
sketch15 = doc.addObject("Sketcher::SketchObject", "Sketch014")
body.addObject(sketch15)
sketch15.AttachmentSupport = (doc.XZ_Plane, [""])
sketch15.MapMode = "FlatFace"
sketch15.AttachmentOffset = App.Placement(App.Vector(0, 0, 3.9), App.Rotation())
sketch15.addGeometry([
    Part.LineSegment(App.Vector(-33.4, 1.4, 0), App.Vector(-33.4, 0, 0)),
    Part.LineSegment(App.Vector(-33.4, 0, 0), App.Vector(-30.2, 0, 0)),
    Part.LineSegment(App.Vector(-30.2, 0, 0), App.Vector(-30.2, 1.4, 0)),
    Part.LineSegment(App.Vector(-30.2, 1.4, 0), App.Vector(-33.4, 1.4, 0)),
], False)
sketch15.addConstraint([
    Sketcher.Constraint("Coincident", 0, 2, 1, 1),
    Sketcher.Constraint("Coincident", 1, 2, 2, 1),
    Sketcher.Constraint("Coincident", 2, 2, 3, 1),
    Sketcher.Constraint("Coincident", 3, 2, 0, 1),
    Sketcher.Constraint("Vertical", 0),
    Sketcher.Constraint("Horizontal", 1),
    Sketcher.Constraint("Vertical", 2),
    Sketcher.Constraint("Horizontal", 3),
    Sketcher.Constraint("PointOnObject", 0, 2, -1),
    Sketcher.Constraint("DistanceY", 0, 2, 0, 1, 1.4),
    Sketcher.Constraint("DistanceX", 1, 1, 1, 2, 3.22658),
    Sketcher.Constraint("DistanceX", 0, 2, -1, 1, 33.445754),
])
pad8 = doc.addObject("PartDesign::Pad", "Pad007")
body.addObject(pad8)
pad8.Profile = sketch15
pad8.Length = 7.8
pad8.Reversed = True
doc.recompute()

fillet4 = doc.addObject("PartDesign::Fillet", "Fillet003")
body.addObject(fillet4)
fillet4.Base = (pad8, edges_at(pad8, [(-33.446, -3.9, 0.7), (-33.446, 3.9, 0.7)]))
fillet4.Radius = 1
doc.recompute()

fillet5 = doc.addObject("PartDesign::Fillet", "Fillet004")
body.addObject(fillet5)
fillet5.Base = (fillet4, edges_at(fillet4, [(-33.446, 0, 1.4)]))
fillet5.Radius = 1

# Sketch on XZ plane
sketch16 = doc.addObject("Sketcher::SketchObject", "Sketch015")
body.addObject(sketch16)
sketch16.AttachmentSupport = (doc.XZ_Plane, [""])
sketch16.MapMode = "FlatFace"
sketch16.AttachmentOffset = App.Placement(App.Vector(0, 0, 3.9), App.Rotation())
sketch16.addGeometry([
    Part.LineSegment(App.Vector(-32.3, 3.1, 0), App.Vector(-30.8, 3.1, 0)),
    Part.LineSegment(App.Vector(-30.8, 3.1, 0), App.Vector(-29.7, 8.2, 0)),
    Part.LineSegment(App.Vector(-29.7, 8.2, 0), App.Vector(-32.3, 3.1, 0)),
], False)
sketch16.addConstraint([
    Sketcher.Constraint("Coincident", 0, 2, 1, 1),
    Sketcher.Constraint("Coincident", 1, 2, 2, 1),
    Sketcher.Constraint("Coincident", 2, 2, 0, 1),
    Sketcher.Constraint("Horizontal", 0),
    Sketcher.Constraint("DistanceX", 0, 1, 0, 2, 1.5),
    Sketcher.Constraint("DistanceY", -1, 1, 0, 2, 3.1),
    Sketcher.Constraint("Distance", 2, 5.676529),
    Sketcher.Constraint("DistanceX", 0, 2, -1, 1, 30.78968),
    Sketcher.Constraint("DistanceX", 1, 2, -1, 1, 29.718611),
])
pad9 = doc.addObject("PartDesign::Pad", "Pad008")
body.addObject(pad9)
pad9.Profile = sketch16
pad9.Length = 7.8
pad9.Reversed = True

# Sketch on an angled plane
sketch17 = doc.addObject("Sketcher::SketchObject", "Sketch016")
body.addObject(sketch17)
sketch17.Placement = App.Placement(App.Vector(-30.097678, 0, 6.369768), App.Rotation(App.Vector(0, -1, 0), App.Vector(0.207050419, 0, 0.978330273), App.Vector(-0.978330273, 0, 0.207050419), "ZXY"))
sketch17.addGeometry([
    Part.LineSegment(App.Vector(-3, 2, 0), App.Vector(-3, -5, 0)),
    Part.LineSegment(App.Vector(-3, -5, 0), App.Vector(3, -5, 0)),
    Part.LineSegment(App.Vector(3, -5, 0), App.Vector(3, 2, 0)),
    Part.LineSegment(App.Vector(3, 2, 0), App.Vector(-3, 2, 0)),
], False)
sketch17.addConstraint([
    Sketcher.Constraint("Coincident", 0, 2, 1, 1),
    Sketcher.Constraint("Coincident", 1, 2, 2, 1),
    Sketcher.Constraint("Coincident", 2, 2, 3, 1),
    Sketcher.Constraint("Coincident", 3, 2, 0, 1),
    Sketcher.Constraint("Vertical", 0),
    Sketcher.Constraint("Horizontal", 1),
    Sketcher.Constraint("Vertical", 2),
    Sketcher.Constraint("Horizontal", 3),
    Sketcher.Constraint("DistanceX", 1, 1, 1, 2, 5.3),
    Sketcher.Constraint("DistanceX", 0, 2, -1, 1, 2.65),
    Sketcher.Constraint("DistanceY", 0, 2, 0, 1, 6.908861),
    Sketcher.Constraint("DistanceY", 0, 2, -1, 1, 4.502927),
])
pocket8 = doc.addObject("PartDesign::Pocket", "Pocket007")
body.addObject(pocket8)
pocket8.Profile = sketch17
pocket8.Length = 5
pocket8.Reversed = True

# Sketch on YZ plane
sketch18 = doc.addObject("Sketcher::SketchObject", "Sketch017")
body.addObject(sketch18)
sketch18.AttachmentSupport = (doc.YZ_Plane, [""])
sketch18.MapMode = "FlatFace"
sketch18.AttachmentOffset = App.Placement(App.Vector(0, 0, 37.775), App.Rotation())
sketch18.addGeometry([
    Part.LineSegment(App.Vector(-3.5, 5.8, 0), App.Vector(-3.5, 4.5, 0)),
    Part.LineSegment(App.Vector(-3.5, 4.5, 0), App.Vector(3.8, 4.5, 0)),
    Part.LineSegment(App.Vector(3.8, 4.5, 0), App.Vector(3.8, 5.8, 0)),
    Part.LineSegment(App.Vector(3.8, 5.8, 0), App.Vector(-3.5, 5.8, 0)),
], False)
sketch18.addConstraint([
    Sketcher.Constraint("Coincident", 0, 2, 1, 1),
    Sketcher.Constraint("Coincident", 1, 2, 2, 1),
    Sketcher.Constraint("Coincident", 2, 2, 3, 1),
    Sketcher.Constraint("Coincident", 3, 2, 0, 1),
    Sketcher.Constraint("Vertical", 0),
    Sketcher.Constraint("Horizontal", 1),
    Sketcher.Constraint("Vertical", 2),
    Sketcher.Constraint("Horizontal", 3),
    Sketcher.Constraint("DistanceY", -1, 1, 0, 2, 4.5),
    Sketcher.Constraint("DistanceY", 0, 2, 0, 1, 1.27086),
    Sketcher.Constraint("DistanceX", 1, 1, 1, 2, 7.346396),
    Sketcher.Constraint("DistanceX", 0, 2, -1, 1, 3.496432),
])
pocket9 = doc.addObject("PartDesign::Pocket", "Pocket008")
body.addObject(pocket9)
pocket9.Profile = sketch18
pocket9.Length = 12
doc.recompute()

fillet6 = doc.addObject("PartDesign::Fillet", "Fillet005")
body.addObject(fillet6)
fillet6.Base = (pocket9, edges_at(pocket9, [(31.475, 13.775, 1.25)]))
fillet6.Radius = 2
doc.recompute()

fillet7 = doc.addObject("PartDesign::Fillet", "Fillet006")
body.addObject(fillet7)
fillet7.Base = (fillet6, edges_at(fillet6, [(31.475, -13.775, 1.25)]))
fillet7.Radius = 2

# Sketch on YZ plane
sketch19 = doc.addObject("Sketcher::SketchObject", "Sketch018")
body.addObject(sketch19)
sketch19.AttachmentSupport = (doc.YZ_Plane, [""])
sketch19.MapMode = "FlatFace"
sketch19.AttachmentOffset = App.Placement(App.Vector(0, 0, 15.3), App.Rotation())
sketch19.addGeometry([
    Part.LineSegment(App.Vector(-11, 12, 0), App.Vector(-11, 2, 0)),  # 0
    Part.LineSegment(App.Vector(-11, 2, 0), App.Vector(-3, 2, 0)),  # 1
    Part.LineSegment(App.Vector(-3, 2, 0), App.Vector(-3, 12, 0)),  # 2
    Part.LineSegment(App.Vector(-3, 12, 0), App.Vector(-11, 12, 0)),  # 3
    Part.LineSegment(App.Vector(3, 12, 0), App.Vector(3, 2, 0)),  # 4
    Part.LineSegment(App.Vector(3, 2, 0), App.Vector(11, 2, 0)),  # 5
    Part.LineSegment(App.Vector(11, 2, 0), App.Vector(11, 12, 0)),  # 6
    Part.LineSegment(App.Vector(11, 12, 0), App.Vector(3, 12, 0)),  # 7
], False)
sketch19.addConstraint([
    Sketcher.Constraint("Coincident", 0, 2, 1, 1),
    Sketcher.Constraint("Coincident", 1, 2, 2, 1),
    Sketcher.Constraint("Coincident", 2, 2, 3, 1),
    Sketcher.Constraint("Coincident", 3, 2, 0, 1),
    Sketcher.Constraint("Coincident", 4, 2, 5, 1),
    Sketcher.Constraint("Coincident", 5, 2, 6, 1),
    Sketcher.Constraint("Coincident", 6, 2, 7, 1),
    Sketcher.Constraint("Coincident", 7, 2, 4, 1),
    Sketcher.Constraint("Vertical", 0),
    Sketcher.Constraint("Horizontal", 1),
    Sketcher.Constraint("Vertical", 2),
    Sketcher.Constraint("Horizontal", 3),
    Sketcher.Constraint("Vertical", 4),
    Sketcher.Constraint("Horizontal", 5),
    Sketcher.Constraint("Vertical", 6),
    Sketcher.Constraint("Horizontal", 7),
    Sketcher.Constraint("Symmetric", 1, 2, 4, 2, -2),
    Sketcher.Constraint("Symmetric", 3, 2, 6, 2, -2),
    Sketcher.Constraint("DistanceY", -1, 1, 0, 2, 2.2),
    Sketcher.Constraint("DistanceX", 1, 1, 1, 2, 8.422166),
    Sketcher.Constraint("DistanceY", 0, 2, 0, 1, 10.199767),
    Sketcher.Constraint("DistanceX", 0, 2, -1, 1, 10.938089),
])
pocket10 = doc.addObject("PartDesign::Pocket", "Pocket009")
body.addObject(pocket10)
pocket10.Profile = sketch19
pocket10.Length = 31

# Sketch on XZ plane
sketch20 = doc.addObject("Sketcher::SketchObject", "Sketch019")
body.addObject(sketch20)
sketch20.AttachmentSupport = (doc.XZ_Plane, [""])
sketch20.MapMode = "FlatFace"
sketch20.AttachmentOffset = App.Placement(App.Vector(0, 0, 3.9), App.Rotation())
sketch20.addGeometry(Part.Circle(App.Vector(-27.8, 10.1, 0), App.Vector(0, 0, 1), 1.5), False)
sketch20.addConstraint([
    Sketcher.Constraint("Diameter", 0, 3.0),
    Sketcher.Constraint("DistanceY", -1, 1, 0, 3, 10.1),
    Sketcher.Constraint("DistanceX", 0, 3, -1, 1, 27.775),
])
pad10 = doc.addObject("PartDesign::Pad", "Pad009")
body.addObject(pad10)
pad10.Profile = sketch20
pad10.Length = 7.8
pad10.Reversed = True

# Sketch on XZ plane
sketch21 = doc.addObject("Sketcher::SketchObject", "Sketch020")
body.addObject(sketch21)
sketch21.AttachmentSupport = (doc.XZ_Plane, [""])
sketch21.MapMode = "FlatFace"
sketch21.AttachmentOffset = App.Placement(App.Vector(0, 0, 3.3), App.Rotation())
sketch21.addGeometry([
    Part.LineSegment(App.Vector(28.3, 5.4, 0), App.Vector(28.3, 4, 0)),
    Part.LineSegment(App.Vector(28.3, 4, 0), App.Vector(38.4, 4, 0)),
    Part.LineSegment(App.Vector(38.4, 4, 0), App.Vector(38.4, 5.4, 0)),
    Part.LineSegment(App.Vector(38.4, 5.4, 0), App.Vector(28.3, 5.4, 0)),
], False)
sketch21.addConstraint([
    Sketcher.Constraint("Coincident", 0, 2, 1, 1),
    Sketcher.Constraint("Coincident", 1, 2, 2, 1),
    Sketcher.Constraint("Coincident", 2, 2, 3, 1),
    Sketcher.Constraint("Coincident", 3, 2, 0, 1),
    Sketcher.Constraint("Vertical", 0),
    Sketcher.Constraint("Horizontal", 1),
    Sketcher.Constraint("Vertical", 2),
    Sketcher.Constraint("Horizontal", 3),
    Sketcher.Constraint("DistanceY", -1, 1, 0, 2, 4.0),
    Sketcher.Constraint("DistanceX", 1, 1, 1, 2, 10.078106),
    Sketcher.Constraint("DistanceY", 0, 2, 0, 1, 1.351365),
    Sketcher.Constraint("DistanceX", -1, 1, 0, 2, 28.313789),
])
pocket11 = doc.addObject("PartDesign::Pocket", "Pocket010")
body.addObject(pocket11)
pocket11.Profile = sketch21
pocket11.Type = "ThroughAll"

# Sketch on XZ plane
sketch22 = doc.addObject("Sketcher::SketchObject", "Sketch021")
body.addObject(sketch22)
sketch22.AttachmentSupport = (doc.XZ_Plane, [""])
sketch22.MapMode = "FlatFace"
sketch22.AttachmentOffset = App.Placement(App.Vector(0, 0, 3.9), App.Rotation())
sketch22.addGeometry(Part.Circle(App.Vector(-27.9, 8.7, 0), App.Vector(0, 0, 1), 1), False)
sketch22.addConstraint([
    Sketcher.Constraint("Diameter", 0, 1.928991),
    Sketcher.Constraint("DistanceX", 0, 3, -1, 1, 27.9239),
    Sketcher.Constraint("DistanceY", -1, 1, 0, 3, 8.677288),
])
pad11 = doc.addObject("PartDesign::Pad", "Pad010")
body.addObject(pad11)
pad11.Profile = sketch22
pad11.Length = 7.8
pad11.Reversed = True

doc.recompute()
